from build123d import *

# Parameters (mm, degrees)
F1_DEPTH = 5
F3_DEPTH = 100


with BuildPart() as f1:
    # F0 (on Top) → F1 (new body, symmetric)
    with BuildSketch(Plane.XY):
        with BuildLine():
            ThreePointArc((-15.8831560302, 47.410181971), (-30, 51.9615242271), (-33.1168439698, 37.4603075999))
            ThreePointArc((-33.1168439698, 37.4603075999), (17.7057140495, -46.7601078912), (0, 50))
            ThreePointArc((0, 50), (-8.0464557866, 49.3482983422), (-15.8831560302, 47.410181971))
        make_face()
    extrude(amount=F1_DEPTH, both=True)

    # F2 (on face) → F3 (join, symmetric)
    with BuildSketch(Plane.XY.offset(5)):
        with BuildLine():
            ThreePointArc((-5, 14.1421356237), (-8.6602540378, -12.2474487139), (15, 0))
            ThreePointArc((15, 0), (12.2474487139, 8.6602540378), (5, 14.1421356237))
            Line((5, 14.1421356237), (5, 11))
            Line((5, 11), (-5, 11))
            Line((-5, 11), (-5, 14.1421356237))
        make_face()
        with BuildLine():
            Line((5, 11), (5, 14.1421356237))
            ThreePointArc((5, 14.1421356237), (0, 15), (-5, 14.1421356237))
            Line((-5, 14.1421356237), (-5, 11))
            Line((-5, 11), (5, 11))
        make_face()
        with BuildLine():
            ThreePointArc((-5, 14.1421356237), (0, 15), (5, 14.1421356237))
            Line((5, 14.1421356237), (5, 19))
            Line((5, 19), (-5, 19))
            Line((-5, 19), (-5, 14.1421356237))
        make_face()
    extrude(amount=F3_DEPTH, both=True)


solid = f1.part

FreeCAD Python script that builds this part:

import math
import FreeCAD as App
import Part
import Sketcher
Q = App.Units.Quantity

doc = App.newDocument("Part")
body = doc.addObject("PartDesign::Body", "Body")

sketch1 = body.newObject("Sketcher::SketchObject", "Sketch")
sketch1.AttachmentSupport = (doc.getObject("XY_Plane"), [""])
sketch1.MapMode = "FlatFace"
sketch1.addGeometry(Part.ArcOfCircle(Part.Circle(App.Vector(-25, 43, 0), App.Vector(0, 0, 1), 10), math.radians(24), math.radians(216)), False)
sketch1.addGeometry(Part.ArcOfCircle(Part.Circle(App.Vector(0, 0, 0), App.Vector(0, 0, 1), 50), math.radians(131), math.radians(450)), False)
sketch1.addGeometry(Part.ArcOfCircle(Part.Circle(App.Vector(0, 0, 0), App.Vector(0, 0, 1), 50), math.radians(90), math.radians(108.52)), False)
sketch1.addConstraint(Sketcher.Constraint("Coincident", 0, 2, 1, 1))
sketch1.addConstraint(Sketcher.Constraint("Tangent", 1, 2, 2, 1))
sketch1.addConstraint(Sketcher.Constraint("Coincident", 2, 2, 0, 1))
sketch1.addConstraint(Sketcher.Constraint("Coincident", 1, 3, -1, 1))
sketch1.addConstraint(Sketcher.Constraint("Equal", 1, 2))
sketch1.addConstraint(Sketcher.Constraint("PointOnObject", 1, 2, -2))
sketch1.addConstraint(Sketcher.Constraint("Radius", 0, Q("10 mm")))
sketch1.addConstraint(Sketcher.Constraint("Radius", 1, Q("50 mm")))
sketch1.addConstraint(Sketcher.Constraint("DistanceX", 0, 3, -1, 1, Q("25 mm")))
sketch1.addConstraint(Sketcher.Constraint("DistanceY", -1, 1, 0, 3, Q("43.30127 mm")))
pad1 = body.newObject("PartDesign::Pad", "Pad")
pad1.Profile = sketch1
pad1.Length = 10
pad1.Midplane = True

sketch2 = body.newObject("Sketcher::SketchObject", "Sketch001")
sketch2.AttachmentSupport = (doc.getObject("XY_Plane"), [""])
sketch2.MapMode = "FlatFace"
sketch2.AttachmentOffset = App.Placement(App.Vector(0, 0, 5), App.Rotation())
sketch2.addGeometry(Part.ArcOfCircle(Part.Circle(App.Vector(0, 0, 0), App.Vector(0, 0, 1), 15), math.radians(109), math.radians(360)), False)
sketch2.addGeometry(Part.ArcOfCircle(Part.Circle(App.Vector(0, 0, 0), App.Vector(0, 0, 1), 15), math.radians(0), math.radians(71)), False)
sketch2.addGeometry(Part.LineSegment(App.Vector(5, 14.1, 0), App.Vector(5, 19, 0)), False)
sketch2.addGeometry(Part.LineSegment(App.Vector(5, 19, 0), App.Vector(-5, 19, 0)), False)
sketch2.addGeometry(Part.LineSegment(App.Vector(-5, 19, 0), App.Vector(-5, 14.1, 0)), False)
sketch2.addConstraint(Sketcher.Constraint("Tangent", 0, 2, 1, 1))
sketch2.addConstraint(Sketcher.Constraint("Coincident", 1, 2, 2, 1))
sketch2.addConstraint(Sketcher.Constraint("Coincident", 2, 2, 3, 1))
sketch2.addConstraint(Sketcher.Constraint("Coincident", 3, 2, 4, 1))
sketch2.addConstraint(Sketcher.Constraint("Coincident", 4, 2, 0, 1))
sketch2.addConstraint(Sketcher.Constraint("Vertical", 2))
sketch2.addConstraint(Sketcher.Constraint("Horizontal", 3))
sketch2.addConstraint(Sketcher.Constraint("Vertical", 4))
sketch2.addConstraint(Sketcher.Constraint("Coincident", 0, 3, -1, 1))
sketch2.addConstraint(Sketcher.Constraint("Equal", 0, 1))
sketch2.addConstraint(Sketcher.Constraint("PointOnObject", 0, 2, -1))
sketch2.addConstraint(Sketcher.Constraint("Horizontal", 1, 2, 4, 2))
sketch2.addConstraint(Sketcher.Constraint("Radius", 0, Q("15 mm")))
sketch2.addConstraint(Sketcher.Constraint("DistanceX", 3, 2, 3, 1, Q("10 mm")))
sketch2.addConstraint(Sketcher.Constraint("DistanceY", -1, 1, 2, 2, Q("19 mm")))
pad2 = body.newObject("PartDesign::Pad", "Pad001")
pad2.Profile = sketch2
pad2.Length = 200
pad2.Midplane = True

doc.recompute()
